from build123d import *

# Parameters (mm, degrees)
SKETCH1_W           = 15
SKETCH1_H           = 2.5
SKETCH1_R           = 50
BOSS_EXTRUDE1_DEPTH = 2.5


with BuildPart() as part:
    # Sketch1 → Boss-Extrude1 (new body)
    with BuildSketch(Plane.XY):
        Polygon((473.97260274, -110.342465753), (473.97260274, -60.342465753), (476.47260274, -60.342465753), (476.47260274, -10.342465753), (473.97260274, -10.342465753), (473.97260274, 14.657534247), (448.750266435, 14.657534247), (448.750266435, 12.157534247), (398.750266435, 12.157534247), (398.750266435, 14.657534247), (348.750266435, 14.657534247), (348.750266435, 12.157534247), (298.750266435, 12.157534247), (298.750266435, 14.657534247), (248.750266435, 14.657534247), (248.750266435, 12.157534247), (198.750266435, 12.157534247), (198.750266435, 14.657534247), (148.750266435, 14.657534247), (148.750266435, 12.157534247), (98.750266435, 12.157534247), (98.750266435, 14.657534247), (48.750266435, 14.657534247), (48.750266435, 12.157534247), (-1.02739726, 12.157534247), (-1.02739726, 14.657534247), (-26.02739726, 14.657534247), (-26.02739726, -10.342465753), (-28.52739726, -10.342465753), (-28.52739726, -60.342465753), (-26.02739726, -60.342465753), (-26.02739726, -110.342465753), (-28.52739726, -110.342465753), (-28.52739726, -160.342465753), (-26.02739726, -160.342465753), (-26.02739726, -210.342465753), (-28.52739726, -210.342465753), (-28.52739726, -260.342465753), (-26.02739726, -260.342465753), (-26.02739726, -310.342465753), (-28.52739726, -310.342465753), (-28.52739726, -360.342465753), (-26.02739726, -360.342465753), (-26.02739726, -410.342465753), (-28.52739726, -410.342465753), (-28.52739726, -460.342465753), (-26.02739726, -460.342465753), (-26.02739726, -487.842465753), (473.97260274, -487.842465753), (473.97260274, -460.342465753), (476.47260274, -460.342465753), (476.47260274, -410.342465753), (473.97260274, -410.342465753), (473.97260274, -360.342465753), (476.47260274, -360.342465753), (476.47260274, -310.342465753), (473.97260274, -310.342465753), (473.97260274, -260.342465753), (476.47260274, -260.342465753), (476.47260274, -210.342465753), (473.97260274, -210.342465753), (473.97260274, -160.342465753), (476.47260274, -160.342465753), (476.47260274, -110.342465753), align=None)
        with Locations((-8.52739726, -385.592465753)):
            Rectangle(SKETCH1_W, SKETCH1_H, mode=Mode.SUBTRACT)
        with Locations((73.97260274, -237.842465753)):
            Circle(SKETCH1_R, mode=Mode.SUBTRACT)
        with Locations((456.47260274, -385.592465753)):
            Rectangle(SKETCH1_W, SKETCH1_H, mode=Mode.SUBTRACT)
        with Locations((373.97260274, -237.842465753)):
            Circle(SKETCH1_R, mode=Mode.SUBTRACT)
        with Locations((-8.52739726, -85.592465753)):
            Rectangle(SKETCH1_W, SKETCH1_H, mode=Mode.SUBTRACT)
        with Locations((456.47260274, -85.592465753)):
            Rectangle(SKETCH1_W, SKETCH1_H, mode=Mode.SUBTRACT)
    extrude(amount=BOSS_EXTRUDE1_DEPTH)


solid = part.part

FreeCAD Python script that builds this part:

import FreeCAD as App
import Part
import Sketcher

V = App.Vector
Q = App.Units.Quantity

doc = App.newDocument("Part")
body = doc.addObject("PartDesign::Body", "Body")

sketch1 = body.newObject("Sketcher::SketchObject", "Sketch")
sketch1.AttachmentSupport = (doc.getObject("XY_Plane"), [""])
sketch1.MapMode = "FlatFace"
sketch1.addGeometry([
    Part.LineSegment(V(474, -110.3, 0), V(474, -60.3, 0)),
    Part.LineSegment(V(474, -60.3, 0), V(476.5, -60.3, 0)),
    Part.LineSegment(V(476.5, -60.3, 0), V(476.5, -10.3, 0)),
    Part.LineSegment(V(476.5, -10.3, 0), V(474, -10.3, 0)),
    Part.LineSegment(V(474, -10.3, 0), V(474, 14.7, 0)),
    Part.LineSegment(V(474, 14.7, 0), V(448.8, 14.7, 0)),
    Part.LineSegment(V(448.8, 14.7, 0), V(448.8, 12.2, 0)),
    Part.LineSegment(V(448.8, 12.2, 0), V(398.8, 12.2, 0)),
    Part.LineSegment(V(398.8, 12.2, 0), V(398.8, 14.7, 0)),
    Part.LineSegment(V(398.8, 14.7, 0), V(348.8, 14.7, 0)),
    Part.LineSegment(V(348.8, 14.7, 0), V(348.8, 12.2, 0)),
    Part.LineSegment(V(348.8, 12.2, 0), V(298.8, 12.2, 0)),
    Part.LineSegment(V(298.8, 12.2, 0), V(298.8, 14.7, 0)),
    Part.LineSegment(V(298.8, 14.7, 0), V(248.8, 14.7, 0)),
    Part.LineSegment(V(248.8, 14.7, 0), V(248.8, 12.2, 0)),
    Part.LineSegment(V(248.8, 12.2, 0), V(198.8, 12.2, 0)),
    Part.LineSegment(V(198.8, 12.2, 0), V(198.8, 14.7, 0)),
    Part.LineSegment(V(198.8, 14.7, 0), V(148.8, 14.7, 0)),
    Part.LineSegment(V(148.8, 14.7, 0), V(148.8, 12.2, 0)),
    Part.LineSegment(V(148.8, 12.2, 0), V(98.8, 12.2, 0)),
    Part.LineSegment(V(98.8, 12.2, 0), V(98.8, 14.7, 0)),
    Part.LineSegment(V(98.8, 14.7, 0), V(48.8, 14.7, 0)),
    Part.LineSegment(V(48.8, 14.7, 0), V(48.8, 12.2, 0)),
    Part.LineSegment(V(48.8, 12.2, 0), V(-1, 12.2, 0)),
    Part.LineSegment(V(-1, 12.2, 0), V(-1, 14.7, 0)),
    Part.LineSegment(V(-1, 14.7, 0), V(-26, 14.7, 0)),
    Part.LineSegment(V(-26, 14.7, 0), V(-26, -10.3, 0)),
    Part.LineSegment(V(-26, -10.3, 0), V(-28.5, -10.3, 0)),
    Part.LineSegment(V(-28.5, -10.3, 0), V(-28.5, -60.3, 0)),
    Part.LineSegment(V(-28.5, -60.3, 0), V(-26, -60.3, 0)),
    Part.LineSegment(V(-26, -60.3, 0), V(-26, -110.3, 0)),
    Part.LineSegment(V(-26, -110.3, 0), V(-28.5, -110.3, 0)),
    Part.LineSegment(V(-28.5, -110.3, 0), V(-28.5, -160.3, 0)),
    Part.LineSegment(V(-28.5, -160.3, 0), V(-26, -160.3, 0)),
    Part.LineSegment(V(-26, -160.3, 0), V(-26, -210.3, 0)),
    Part.LineSegment(V(-26, -210.3, 0), V(-28.5, -210.3, 0)),
    Part.LineSegment(V(-28.5, -210.3, 0), V(-28.5, -260.3, 0)),
    Part.LineSegment(V(-28.5, -260.3, 0), V(-26, -260.3, 0)),
    Part.LineSegment(V(-26, -260.3, 0), V(-26, -310.3, 0)),
    Part.LineSegment(V(-26, -310.3, 0), V(-28.5, -310.3, 0)),
    Part.LineSegment(V(-28.5, -310.3, 0), V(-28.5, -360.3, 0)),
    Part.LineSegment(V(-28.5, -360.3, 0), V(-26, -360.3, 0)),
    Part.LineSegment(V(-26, -360.3, 0), V(-26, -410.3, 0)),
    Part.LineSegment(V(-26, -410.3, 0), V(-28.5, -410.3, 0)),
    Part.LineSegment(V(-28.5, -410.3, 0), V(-28.5, -460.3, 0)),
    Part.LineSegment(V(-28.5, -460.3, 0), V(-26, -460.3, 0)),
    Part.LineSegment(V(-26, -460.3, 0), V(-26, -487.8, 0)),
    Part.LineSegment(V(-26, -487.8, 0), V(474, -487.8, 0)),
    Part.LineSegment(V(474, -487.8, 0), V(474, -460.3, 0)),
    Part.LineSegment(V(474, -460.3, 0), V(476.5, -460.3, 0)),
    Part.LineSegment(V(476.5, -460.3, 0), V(476.5, -410.3, 0)),
    Part.LineSegment(V(476.5, -410.3, 0), V(474, -410.3, 0)),
    Part.LineSegment(V(474, -410.3, 0), V(474, -360.3, 0)),
    Part.LineSegment(V(474, -360.3, 0), V(476.5, -360.3, 0)),
    Part.LineSegment(V(476.5, -360.3, 0), V(476.5, -310.3, 0)),
    Part.LineSegment(V(476.5, -310.3, 0), V(474, -310.3, 0)),
    Part.LineSegment(V(474, -310.3, 0), V(474, -260.3, 0)),
    Part.LineSegment(V(474, -260.3, 0), V(476.5, -260.3, 0)),
    Part.LineSegment(V(476.5, -260.3, 0), V(476.5, -210.3, 0)),
    Part.LineSegment(V(476.5, -210.3, 0), V(474, -210.3, 0)),
    Part.LineSegment(V(474, -210.3, 0), V(474, -160.3, 0)),
    Part.LineSegment(V(474, -160.3, 0), V(476.5, -160.3, 0)),
    Part.LineSegment(V(476.5, -160.3, 0), V(476.5, -110.3, 0)),
    Part.LineSegment(V(476.5, -110.3, 0), V(474, -110.3, 0)),
    Part.LineSegment(V(-1, -386.8, 0), V(-16, -386.8, 0)),
    Part.LineSegment(V(-16, -386.8, 0), V(-16, -384.3, 0)),
    Part.LineSegment(V(-16, -384.3, 0), V(-1, -384.3, 0)),
    Part.LineSegment(V(-1, -384.3, 0), V(-1, -386.8, 0)),
    Part.Circle(V(74, -237.8, 0), V(0, 0, 1), 50),
    Part.LineSegment(V(464, -386.8, 0), V(449, -386.8, 0)),
    Part.LineSegment(V(449, -386.8, 0), V(449, -384.3, 0)),
    Part.LineSegment(V(449, -384.3, 0), V(464, -384.3, 0)),
    Part.LineSegment(V(464, -384.3, 0), V(464, -386.8, 0)),
    Part.Circle(V(374, -237.8, 0), V(0, 0, 1), 50),
    Part.LineSegment(V(-1, -86.8, 0), V(-16, -86.8, 0)),
    Part.LineSegment(V(-16, -86.8, 0), V(-16, -84.3, 0)),
    Part.LineSegment(V(-16, -84.3, 0), V(-1, -84.3, 0)),
    Part.LineSegment(V(-1, -84.3, 0), V(-1, -86.8, 0)),
    Part.LineSegment(V(464, -86.8, 0), V(449, -86.8, 0)),
    Part.LineSegment(V(449, -86.8, 0), V(449, -84.3, 0)),
    Part.LineSegment(V(449, -84.3, 0), V(464, -84.3, 0)),
    Part.LineSegment(V(464, -84.3, 0), V(464, -86.8, 0)),
], False)
sketch1.addConstraint([
    Sketcher.Constraint("Coincident", 0, 2, 1, 1),
    Sketcher.Constraint("Coincident", 1, 2, 2, 1),
    Sketcher.Constraint("Coincident", 2, 2, 3, 1),
    Sketcher.Constraint("Coincident", 3, 2, 4, 1),
    Sketcher.Constraint("Coincident", 4, 2, 5, 1),
    Sketcher.Constraint("Coincident", 5, 2, 6, 1),
    Sketcher.Constraint("Coincident", 6, 2, 7, 1),
    Sketcher.Constraint("Coincident", 7, 2, 8, 1),
    Sketcher.Constraint("Coincident", 8, 2, 9, 1),
    Sketcher.Constraint("Coincident", 9, 2, 10, 1),
    Sketcher.Constraint("Coincident", 10, 2, 11, 1),
    Sketcher.Constraint("Coincident", 11, 2, 12, 1),
    Sketcher.Constraint("Coincident", 12, 2, 13, 1),
    Sketcher.Constraint("Coincident", 13, 2, 14, 1),
    Sketcher.Constraint("Coincident", 14, 2, 15, 1),
    Sketcher.Constraint("Coincident", 15, 2, 16, 1),
    Sketcher.Constraint("Coincident", 16, 2, 17, 1),
    Sketcher.Constraint("Coincident", 17, 2, 18, 1),
    Sketcher.Constraint("Coincident", 18, 2, 19, 1),
    Sketcher.Constraint("Coincident", 19, 2, 20, 1),
    Sketcher.Constraint("Coincident", 20, 2, 21, 1),
    Sketcher.Constraint("Coincident", 21, 2, 22, 1),
    Sketcher.Constraint("Coincident", 22, 2, 23, 1),
    Sketcher.Constraint("Coincident", 23, 2, 24, 1),
    Sketcher.Constraint("Coincident", 24, 2, 25, 1),
    Sketcher.Constraint("Coincident", 25, 2, 26, 1),
    Sketcher.Constraint("Coincident", 26, 2, 27, 1),
    Sketcher.Constraint("Coincident", 27, 2, 28, 1),
    Sketcher.Constraint("Coincident", 28, 2, 29, 1),
    Sketcher.Constraint("Coincident", 29, 2, 30, 1),
    Sketcher.Constraint("Coincident", 30, 2, 31, 1),
    Sketcher.Constraint("Coincident", 31, 2, 32, 1),
    Sketcher.Constraint("Coincident", 32, 2, 33, 1),
    Sketcher.Constraint("Coincident", 33, 2, 34, 1),
    Sketcher.Constraint("Coincident", 34, 2, 35, 1),
    Sketcher.Constraint("Coincident", 35, 2, 36, 1),
    Sketcher.Constraint("Coincident", 36, 2, 37, 1),
    Sketcher.Constraint("Coincident", 37, 2, 38, 1),
    Sketcher.Constraint("Coincident", 38, 2, 39, 1),
    Sketcher.Constraint("Coincident", 39, 2, 40, 1),
    Sketcher.Constraint("Coincident", 40, 2, 41, 1),
    Sketcher.Constraint("Coincident", 41, 2, 42, 1),
    Sketcher.Constraint("Coincident", 42, 2, 43, 1),
    Sketcher.Constraint("Coincident", 43, 2, 44, 1),
    Sketcher.Constraint("Coincident", 44, 2, 45, 1),
    Sketcher.Constraint("Coincident", 45, 2, 46, 1),
    Sketcher.Constraint("Coincident", 46, 2, 47, 1),
    Sketcher.Constraint("Coincident", 47, 2, 48, 1),
    Sketcher.Constraint("Coincident", 48, 2, 49, 1),
    Sketcher.Constraint("Coincident", 49, 2, 50, 1),
    Sketcher.Constraint("Coincident", 50, 2, 51, 1),
    Sketcher.Constraint("Coincident", 51, 2, 52, 1),
    Sketcher.Constraint("Coincident", 52, 2, 53, 1),
    Sketcher.Constraint("Coincident", 53, 2, 54, 1),
    Sketcher.Constraint("Coincident", 54, 2, 55, 1),
    Sketcher.Constraint("Coincident", 55, 2, 56, 1),
    Sketcher.Constraint("Coincident", 56, 2, 57, 1),
    Sketcher.Constraint("Coincident", 57, 2, 58, 1),
    Sketcher.Constraint("Coincident", 58, 2, 59, 1),
    Sketcher.Constraint("Coincident", 59, 2, 60, 1),
    Sketcher.Constraint("Coincident", 60, 2, 61, 1),
    Sketcher.Constraint("Coincident", 61, 2, 62, 1),
    Sketcher.Constraint("Coincident", 62, 2, 63, 1),
    Sketcher.Constraint("Coincident", 63, 2, 0, 1),
    Sketcher.Constraint("Coincident", 64, 2, 65, 1),
    Sketcher.Constraint("Coincident", 65, 2, 66, 1),
    Sketcher.Constraint("Coincident", 66, 2, 67, 1),
    Sketcher.Constraint("Coincident", 67, 2, 64, 1),
    Sketcher.Constraint("Coincident", 69, 2, 70, 1),
    Sketcher.Constraint("Coincident", 70, 2, 71, 1),
    Sketcher.Constraint("Coincident", 71, 2, 72, 1),
    Sketcher.Constraint("Coincident", 72, 2, 69, 1),
    Sketcher.Constraint("Coincident", 74, 2, 75, 1),
    Sketcher.Constraint("Coincident", 75, 2, 76, 1),
    Sketcher.Constraint("Coincident", 76, 2, 77, 1),
    Sketcher.Constraint("Coincident", 77, 2, 74, 1),
    Sketcher.Constraint("Coincident", 78, 2, 79, 1),
    Sketcher.Constraint("Coincident", 79, 2, 80, 1),
    Sketcher.Constraint("Coincident", 80, 2, 81, 1),
    Sketcher.Constraint("Coincident", 81, 2, 78, 1),
    Sketcher.Constraint("Vertical", 0),
    Sketcher.Constraint("Horizontal", 1),
    Sketcher.Constraint("Vertical", 2),
    Sketcher.Constraint("Horizontal", 3),
    Sketcher.Constraint("Vertical", 4),
    Sketcher.Constraint("Horizontal", 5),
    Sketcher.Constraint("Vertical", 6),
    Sketcher.Constraint("Horizontal", 7),
    Sketcher.Constraint("Vertical", 8),
    Sketcher.Constraint("Horizontal", 9),
    Sketcher.Constraint("Vertical", 10),
    Sketcher.Constraint("Horizontal", 11),
    Sketcher.Constraint("Vertical", 12),
    Sketcher.Constraint("Horizontal", 13),
    Sketcher.Constraint("Vertical", 14),
    Sketcher.Constraint("Horizontal", 15),
    Sketcher.Constraint("Vertical", 16),
    Sketcher.Constraint("Horizontal", 17),
    Sketcher.Constraint("Vertical", 18),
    Sketcher.Constraint("Horizontal", 19),
    Sketcher.Constraint("Vertical", 20),
    Sketcher.Constraint("Horizontal", 21),
    Sketcher.Constraint("Vertical", 22),
    Sketcher.Constraint("Horizontal", 23),
    Sketcher.Constraint("Vertical", 24),
    Sketcher.Constraint("Horizontal", 25),
    Sketcher.Constraint("Vertical", 26),
    Sketcher.Constraint("Horizontal", 27),
    Sketcher.Constraint("Vertical", 28),
    Sketcher.Constraint("Horizontal", 29),
    Sketcher.Constraint("Vertical", 30),
    Sketcher.Constraint("Horizontal", 31),
    Sketcher.Constraint("Vertical", 32),
    Sketcher.Constraint("Horizontal", 33),
    Sketcher.Constraint("Vertical", 34),
    Sketcher.Constraint("Horizontal", 35),
    Sketcher.Constraint("Vertical", 36),
    Sketcher.Constraint("Horizontal", 37),
    Sketcher.Constraint("Vertical", 38),
    Sketcher.Constraint("Horizontal", 39),
    Sketcher.Constraint("Vertical", 40),
    Sketcher.Constraint("Horizontal", 41),
    Sketcher.Constraint("Vertical", 42),
    Sketcher.Constraint("Horizontal", 43),
    Sketcher.Constraint("Vertical", 44),
    Sketcher.Constraint("Horizontal", 45),
    Sketcher.Constraint("Vertical", 46),
    Sketcher.Constraint("Horizontal", 47),
    Sketcher.Constraint("Vertical", 48),
    Sketcher.Constraint("Horizontal", 49),
    Sketcher.Constraint("Vertical", 50),
    Sketcher.Constraint("Horizontal", 51),
    Sketcher.Constraint("Vertical", 52),
    Sketcher.Constraint("Horizontal", 53),
    Sketcher.Constraint("Vertical", 54),
    Sketcher.Constraint("Horizontal", 55),
    Sketcher.Constraint("Vertical", 56),
    Sketcher.Constraint("Horizontal", 57),
    Sketcher.Constraint("Vertical", 58),
    Sketcher.Constraint("Horizontal", 59),
    Sketcher.Constraint("Vertical", 60),
    Sketcher.Constraint("Horizontal", 61),
    Sketcher.Constraint("Vertical", 62),
    Sketcher.Constraint("Horizontal", 63),
    Sketcher.Constraint("Horizontal", 64),
    Sketcher.Constraint("Vertical", 65),
    Sketcher.Constraint("Horizontal", 66),
    Sketcher.Constraint("Vertical", 67),
    Sketcher.Constraint("Horizontal", 69),
    Sketcher.Constraint("Vertical", 70),
    Sketcher.Constraint("Horizontal", 71),
    Sketcher.Constraint("Vertical", 72),
    Sketcher.Constraint("Horizontal", 74),
    Sketcher.Constraint("Vertical", 75),
    Sketcher.Constraint("Horizontal", 76),
    Sketcher.Constraint("Vertical", 77),
    Sketcher.Constraint("Horizontal", 78),
    Sketcher.Constraint("Vertical", 79),
    Sketcher.Constraint("Horizontal", 80),
    Sketcher.Constraint("Vertical", 81),
    Sketcher.Constraint("Equal", 68, 73),
    Sketcher.Constraint("Horizontal", 68, 3, 73, 3),
    Sketcher.Constraint("Horizontal", 5, 2, 8, 2),
    Sketcher.Constraint("Horizontal", 7, 2, 10, 2),
    Sketcher.Constraint("Horizontal", 9, 2, 12, 2),
    Sketcher.Constraint("Horizontal", 11, 2, 14, 2),
    Sketcher.Constraint("Horizontal", 13, 2, 16, 2),
    Sketcher.Constraint("Horizontal", 15, 2, 18, 2),
    Sketcher.Constraint("Horizontal", 17, 2, 20, 2),
    Sketcher.Constraint("Horizontal", 19, 2, 22, 2),
    Sketcher.Constraint("Horizontal", 21, 2, 24, 2),
    Sketcher.Constraint("Horizontal", 3, 2, 26, 2),
    Sketcher.Constraint("Horizontal", 1, 2, 28, 2),
    Sketcher.Constraint("Horizontal", 45, 2, 48, 2),
    Sketcher.Constraint("Horizontal", 43, 2, 50, 2),
    Sketcher.Constraint("Horizontal", 41, 2, 52, 2),
    Sketcher.Constraint("Horizontal", 39, 2, 54, 2),
    Sketcher.Constraint("Horizontal", 37, 2, 56, 2),
    Sketcher.Constraint("Horizontal", 35, 2, 58, 2),
    Sketcher.Constraint("Horizontal", 33, 2, 60, 2),
    Sketcher.Constraint("Horizontal", 31, 2, 62, 2),
    Sketcher.Constraint("Horizontal", 67, 2, 69, 2),
    Sketcher.Constraint("Horizontal", 66, 2, 70, 2),
    Sketcher.Constraint("Horizontal", 77, 2, 78, 2),
    Sketcher.Constraint("Horizontal", 76, 2, 79, 2),
    Sketcher.Constraint("Vertical", 0, 2, 3, 2),
    Sketcher.Constraint("Vertical", 26, 2, 29, 2),
    Sketcher.Constraint("Vertical", 28, 2, 31, 2),
    Sketcher.Constraint("Vertical", 30, 2, 33, 2),
    Sketcher.Constraint("Vertical", 32, 2, 35, 2),
    Sketcher.Constraint("Vertical", 34, 2, 37, 2),
    Sketcher.Constraint("Vertical", 36, 2, 39, 2),
    Sketcher.Constraint("Vertical", 38, 2, 41, 2),
    Sketcher.Constraint("Vertical", 40, 2, 43, 2),
    Sketcher.Constraint("Vertical", 42, 2, 45, 2),
    Sketcher.Constraint("Vertical", 4, 2, 47, 2),
    Sketcher.Constraint("Vertical", 2, 2, 49, 2),
    Sketcher.Constraint("Vertical", 48, 2, 51, 2),
    Sketcher.Constraint("Vertical", 50, 2, 53, 2),
    Sketcher.Constraint("Vertical", 52, 2, 55, 2),
    Sketcher.Constraint("Vertical", 54, 2, 57, 2),
    Sketcher.Constraint("Vertical", 56, 2, 59, 2),
    Sketcher.Constraint("Vertical", 58, 2, 61, 2),
    Sketcher.Constraint("Vertical", 24, 2, 66, 2),
    Sketcher.Constraint("Vertical", 65, 2, 74, 2),
    Sketcher.Constraint("Vertical", 67, 2, 76, 2),
    Sketcher.Constraint("Vertical", 70, 2, 78, 2),
    Sketcher.Constraint("Vertical", 72, 2, 80, 2),
    Sketcher.Constraint("Equal", 7, 9),
    Sketcher.Constraint("Equal", 9, 11),
    Sketcher.Constraint("Equal", 11, 13),
    Sketcher.Constraint("Equal", 13, 15),
    Sketcher.Constraint("Equal", 15, 17),
    Sketcher.Constraint("Equal", 17, 19),
    Sketcher.Constraint("Equal", 19, 21),
    Sketcher.Constraint("Equal", 3, 27),
    Sketcher.Constraint("Equal", 66, 69),
    Sketcher.Constraint("Equal", 21, 0),
    Sketcher.Constraint("Equal", 0, 2),
    Sketcher.Constraint("Equal", 25, 4),
    Sketcher.Constraint("Equal", 63, 6),
    Sketcher.Constraint("Equal", 30, 32),
    Sketcher.Constraint("Equal", 32, 34),
    Sketcher.Constraint("Equal", 34, 36),
    Sketcher.Constraint("Equal", 36, 38),
    Sketcher.Constraint("Equal", 38, 40),
    Sketcher.Constraint("Equal", 40, 42),
    Sketcher.Constraint("Equal", 42, 44),
    Sketcher.Constraint("Equal", 24, 65),
    Sketcher.Constraint("Equal", 72, 75),
    Sketcher.Constraint("Diameter", 68, Q("100 mm")),
    Sketcher.Constraint("DistanceX", 7, 2, 7, 1, Q("50 mm")),
    Sketcher.Constraint("DistanceX", 25, 2, 25, 1, Q("25 mm")),
    Sketcher.Constraint("DistanceX", 47, 1, 47, 2, Q("500 mm")),
    Sketcher.Constraint("DistanceX", 64, 2, 64, 1, Q("15 mm")),
    Sketcher.Constraint("DistanceX", 1, 1, 1, 2, Q("2.5 mm")),
    Sketcher.Constraint("DistanceY", 46, 2, 46, 1, Q("27.5 mm")),
    Sketcher.Constraint("DistanceX", 5, 2, 5, 1, Q("25.222336 mm")),
    Sketcher.Constraint("DistanceX", -1, 1, 68, 3, Q("73.972603 mm")),
    Sketcher.Constraint("DistanceY", 68, 3, -1, 1, Q("237.842466 mm")),
    Sketcher.Constraint("DistanceX", -1, 1, 73, 3, Q("373.972603 mm")),
    Sketcher.Constraint("DistanceX", -1, 1, 0, 2, Q("473.972603 mm")),
    Sketcher.Constraint("DistanceY", 0, 2, -1, 1, Q("60.342466 mm")),
    Sketcher.Constraint("DistanceY", 64, 2, -1, 1, Q("386.842466 mm")),
    Sketcher.Constraint("DistanceX", -1, 1, 69, 2, Q("448.972603 mm")),
    Sketcher.Constraint("DistanceY", 74, 2, -1, 1, Q("86.842466 mm")),
])
pad1 = body.newObject("PartDesign::Pad", "Pad")
pad1.Profile = sketch1
pad1.Length = 2.5

doc.recompute()
